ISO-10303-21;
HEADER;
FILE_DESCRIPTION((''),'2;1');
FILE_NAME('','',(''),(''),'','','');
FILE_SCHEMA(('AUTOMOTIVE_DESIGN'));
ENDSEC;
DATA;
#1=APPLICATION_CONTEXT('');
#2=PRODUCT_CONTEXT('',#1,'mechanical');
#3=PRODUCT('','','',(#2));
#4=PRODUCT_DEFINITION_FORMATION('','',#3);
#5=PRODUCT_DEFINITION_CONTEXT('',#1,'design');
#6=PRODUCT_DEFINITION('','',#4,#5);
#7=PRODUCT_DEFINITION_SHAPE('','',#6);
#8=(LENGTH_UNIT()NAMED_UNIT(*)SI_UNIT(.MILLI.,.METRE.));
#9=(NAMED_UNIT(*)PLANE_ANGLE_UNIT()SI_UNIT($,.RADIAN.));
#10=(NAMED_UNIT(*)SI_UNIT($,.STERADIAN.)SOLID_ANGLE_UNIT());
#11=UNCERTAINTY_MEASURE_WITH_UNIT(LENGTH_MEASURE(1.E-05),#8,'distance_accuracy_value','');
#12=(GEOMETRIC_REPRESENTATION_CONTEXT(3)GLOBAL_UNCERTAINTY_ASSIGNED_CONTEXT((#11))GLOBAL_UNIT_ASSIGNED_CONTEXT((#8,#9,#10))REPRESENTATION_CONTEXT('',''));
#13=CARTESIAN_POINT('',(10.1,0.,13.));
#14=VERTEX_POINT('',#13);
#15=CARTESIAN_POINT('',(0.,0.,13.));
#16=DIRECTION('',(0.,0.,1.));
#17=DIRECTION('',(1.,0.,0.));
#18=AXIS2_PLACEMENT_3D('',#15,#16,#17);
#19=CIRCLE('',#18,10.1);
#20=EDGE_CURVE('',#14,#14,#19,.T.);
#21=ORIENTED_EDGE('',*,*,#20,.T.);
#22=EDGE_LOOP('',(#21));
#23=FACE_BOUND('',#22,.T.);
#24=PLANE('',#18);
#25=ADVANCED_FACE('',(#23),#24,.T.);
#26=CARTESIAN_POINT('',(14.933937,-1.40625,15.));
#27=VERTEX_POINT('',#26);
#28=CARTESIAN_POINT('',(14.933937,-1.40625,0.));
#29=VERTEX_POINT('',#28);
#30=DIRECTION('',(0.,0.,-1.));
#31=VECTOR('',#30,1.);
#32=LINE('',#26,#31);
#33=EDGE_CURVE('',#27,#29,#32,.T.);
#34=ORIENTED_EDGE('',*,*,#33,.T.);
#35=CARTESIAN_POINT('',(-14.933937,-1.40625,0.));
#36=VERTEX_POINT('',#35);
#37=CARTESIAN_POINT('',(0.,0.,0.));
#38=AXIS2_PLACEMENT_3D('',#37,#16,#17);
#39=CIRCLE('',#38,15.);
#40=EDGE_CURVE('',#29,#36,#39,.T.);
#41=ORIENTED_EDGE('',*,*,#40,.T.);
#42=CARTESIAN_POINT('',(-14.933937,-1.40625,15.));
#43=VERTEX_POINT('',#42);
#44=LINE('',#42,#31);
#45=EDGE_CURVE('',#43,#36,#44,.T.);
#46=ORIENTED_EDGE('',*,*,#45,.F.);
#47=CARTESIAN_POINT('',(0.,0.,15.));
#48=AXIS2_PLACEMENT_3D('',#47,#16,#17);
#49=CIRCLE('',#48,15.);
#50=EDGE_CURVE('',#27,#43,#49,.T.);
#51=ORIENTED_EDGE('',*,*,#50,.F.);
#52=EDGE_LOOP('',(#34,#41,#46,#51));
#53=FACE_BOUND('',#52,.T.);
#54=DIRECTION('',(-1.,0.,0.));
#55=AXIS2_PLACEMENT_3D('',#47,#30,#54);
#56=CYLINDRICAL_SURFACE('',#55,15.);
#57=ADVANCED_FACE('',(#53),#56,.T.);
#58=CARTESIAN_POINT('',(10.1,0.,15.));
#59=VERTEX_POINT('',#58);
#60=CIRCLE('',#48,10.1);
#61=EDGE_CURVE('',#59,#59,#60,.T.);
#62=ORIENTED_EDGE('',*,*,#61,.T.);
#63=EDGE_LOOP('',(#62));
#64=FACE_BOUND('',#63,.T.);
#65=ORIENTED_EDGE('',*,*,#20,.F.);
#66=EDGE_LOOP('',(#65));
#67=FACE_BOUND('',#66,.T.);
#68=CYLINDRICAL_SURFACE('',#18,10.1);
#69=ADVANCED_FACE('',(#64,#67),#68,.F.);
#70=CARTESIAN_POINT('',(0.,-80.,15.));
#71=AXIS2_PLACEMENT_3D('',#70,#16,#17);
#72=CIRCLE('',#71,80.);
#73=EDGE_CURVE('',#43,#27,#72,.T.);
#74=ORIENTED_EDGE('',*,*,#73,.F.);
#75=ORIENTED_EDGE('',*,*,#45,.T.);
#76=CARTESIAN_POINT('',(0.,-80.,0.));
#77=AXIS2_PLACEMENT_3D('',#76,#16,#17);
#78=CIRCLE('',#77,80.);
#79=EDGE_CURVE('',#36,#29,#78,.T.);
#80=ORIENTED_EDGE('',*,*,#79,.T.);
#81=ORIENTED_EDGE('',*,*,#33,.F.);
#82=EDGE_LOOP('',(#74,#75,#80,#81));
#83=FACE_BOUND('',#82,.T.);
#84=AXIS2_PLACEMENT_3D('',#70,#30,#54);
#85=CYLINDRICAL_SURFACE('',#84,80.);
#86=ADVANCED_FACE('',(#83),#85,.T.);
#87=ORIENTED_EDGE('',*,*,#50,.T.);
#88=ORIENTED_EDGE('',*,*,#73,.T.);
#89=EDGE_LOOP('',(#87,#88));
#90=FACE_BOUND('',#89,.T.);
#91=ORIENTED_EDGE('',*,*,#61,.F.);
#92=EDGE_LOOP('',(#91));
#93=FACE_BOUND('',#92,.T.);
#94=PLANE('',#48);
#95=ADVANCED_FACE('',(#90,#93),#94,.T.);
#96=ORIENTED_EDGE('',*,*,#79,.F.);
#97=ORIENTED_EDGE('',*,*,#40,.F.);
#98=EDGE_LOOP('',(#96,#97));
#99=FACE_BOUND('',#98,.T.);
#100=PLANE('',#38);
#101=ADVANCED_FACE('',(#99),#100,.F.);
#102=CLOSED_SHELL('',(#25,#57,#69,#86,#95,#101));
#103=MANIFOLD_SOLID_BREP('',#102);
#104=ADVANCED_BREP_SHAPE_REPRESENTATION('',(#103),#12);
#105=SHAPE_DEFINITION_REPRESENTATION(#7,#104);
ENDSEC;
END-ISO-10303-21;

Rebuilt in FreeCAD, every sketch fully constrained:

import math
import FreeCAD as App
import Part
import Sketcher

doc = App.newDocument("Part")
body = doc.addObject("PartDesign::Body", "Body")

# Sketch on XY plane
sketch1 = body.newObject("Sketcher::SketchObject", "Sketch")
sketch1.AttachmentSupport = (doc.getObject("XY_Plane"), [""])
sketch1.MapMode = "FlatFace"
sketch1.addGeometry([
    Part.ArcOfCircle(Part.Circle(App.Vector(0, 0, 0), App.Vector(0, 0, 1), 15), math.radians(-5.379379), math.radians(185.379379)),
    Part.ArcOfCircle(Part.Circle(App.Vector(0, -80, 0), App.Vector(0, 0, 1), 80), math.radians(100.758758), math.radians(439.241242)),
], False)
sketch1.addConstraint([
    Sketcher.Constraint("Coincident", 0, 1, 1, 2),
    Sketcher.Constraint("Coincident", 1, 1, 0, 2),
    Sketcher.Constraint("Coincident", 0, 3, -1, 1),
    Sketcher.Constraint("PointOnObject", 1, 3, -2),
    Sketcher.Constraint("Radius", 0, 15.0),
    Sketcher.Constraint("Radius", 1, 80.0),
    Sketcher.Constraint("DistanceY", 1, 3, -1, 1, 80.0),
])
pad1 = body.newObject("PartDesign::Pad", "Pad")
pad1.Profile = sketch1
pad1.Length = 15

# Sketch on XY plane
sketch2 = body.newObject("Sketcher::SketchObject", "Sketch001")
sketch2.AttachmentSupport = (doc.getObject("XY_Plane"), [""])
sketch2.MapMode = "FlatFace"
sketch2.AttachmentOffset = App.Placement(App.Vector(0, 0, 15), App.Rotation())
sketch2.addGeometry(Part.Circle(App.Vector(0, 0, 0), App.Vector(0, 0, 1), 10.1), False)
sketch2.addConstraint([
    Sketcher.Constraint("Coincident", 0, 3, -1, 1),
    Sketcher.Constraint("Diameter", 0, 20.2),
])
pocket1 = body.newObject("PartDesign::Pocket", "Pocket")
pocket1.Profile = sketch2
pocket1.Length = 2

doc.recompute()
